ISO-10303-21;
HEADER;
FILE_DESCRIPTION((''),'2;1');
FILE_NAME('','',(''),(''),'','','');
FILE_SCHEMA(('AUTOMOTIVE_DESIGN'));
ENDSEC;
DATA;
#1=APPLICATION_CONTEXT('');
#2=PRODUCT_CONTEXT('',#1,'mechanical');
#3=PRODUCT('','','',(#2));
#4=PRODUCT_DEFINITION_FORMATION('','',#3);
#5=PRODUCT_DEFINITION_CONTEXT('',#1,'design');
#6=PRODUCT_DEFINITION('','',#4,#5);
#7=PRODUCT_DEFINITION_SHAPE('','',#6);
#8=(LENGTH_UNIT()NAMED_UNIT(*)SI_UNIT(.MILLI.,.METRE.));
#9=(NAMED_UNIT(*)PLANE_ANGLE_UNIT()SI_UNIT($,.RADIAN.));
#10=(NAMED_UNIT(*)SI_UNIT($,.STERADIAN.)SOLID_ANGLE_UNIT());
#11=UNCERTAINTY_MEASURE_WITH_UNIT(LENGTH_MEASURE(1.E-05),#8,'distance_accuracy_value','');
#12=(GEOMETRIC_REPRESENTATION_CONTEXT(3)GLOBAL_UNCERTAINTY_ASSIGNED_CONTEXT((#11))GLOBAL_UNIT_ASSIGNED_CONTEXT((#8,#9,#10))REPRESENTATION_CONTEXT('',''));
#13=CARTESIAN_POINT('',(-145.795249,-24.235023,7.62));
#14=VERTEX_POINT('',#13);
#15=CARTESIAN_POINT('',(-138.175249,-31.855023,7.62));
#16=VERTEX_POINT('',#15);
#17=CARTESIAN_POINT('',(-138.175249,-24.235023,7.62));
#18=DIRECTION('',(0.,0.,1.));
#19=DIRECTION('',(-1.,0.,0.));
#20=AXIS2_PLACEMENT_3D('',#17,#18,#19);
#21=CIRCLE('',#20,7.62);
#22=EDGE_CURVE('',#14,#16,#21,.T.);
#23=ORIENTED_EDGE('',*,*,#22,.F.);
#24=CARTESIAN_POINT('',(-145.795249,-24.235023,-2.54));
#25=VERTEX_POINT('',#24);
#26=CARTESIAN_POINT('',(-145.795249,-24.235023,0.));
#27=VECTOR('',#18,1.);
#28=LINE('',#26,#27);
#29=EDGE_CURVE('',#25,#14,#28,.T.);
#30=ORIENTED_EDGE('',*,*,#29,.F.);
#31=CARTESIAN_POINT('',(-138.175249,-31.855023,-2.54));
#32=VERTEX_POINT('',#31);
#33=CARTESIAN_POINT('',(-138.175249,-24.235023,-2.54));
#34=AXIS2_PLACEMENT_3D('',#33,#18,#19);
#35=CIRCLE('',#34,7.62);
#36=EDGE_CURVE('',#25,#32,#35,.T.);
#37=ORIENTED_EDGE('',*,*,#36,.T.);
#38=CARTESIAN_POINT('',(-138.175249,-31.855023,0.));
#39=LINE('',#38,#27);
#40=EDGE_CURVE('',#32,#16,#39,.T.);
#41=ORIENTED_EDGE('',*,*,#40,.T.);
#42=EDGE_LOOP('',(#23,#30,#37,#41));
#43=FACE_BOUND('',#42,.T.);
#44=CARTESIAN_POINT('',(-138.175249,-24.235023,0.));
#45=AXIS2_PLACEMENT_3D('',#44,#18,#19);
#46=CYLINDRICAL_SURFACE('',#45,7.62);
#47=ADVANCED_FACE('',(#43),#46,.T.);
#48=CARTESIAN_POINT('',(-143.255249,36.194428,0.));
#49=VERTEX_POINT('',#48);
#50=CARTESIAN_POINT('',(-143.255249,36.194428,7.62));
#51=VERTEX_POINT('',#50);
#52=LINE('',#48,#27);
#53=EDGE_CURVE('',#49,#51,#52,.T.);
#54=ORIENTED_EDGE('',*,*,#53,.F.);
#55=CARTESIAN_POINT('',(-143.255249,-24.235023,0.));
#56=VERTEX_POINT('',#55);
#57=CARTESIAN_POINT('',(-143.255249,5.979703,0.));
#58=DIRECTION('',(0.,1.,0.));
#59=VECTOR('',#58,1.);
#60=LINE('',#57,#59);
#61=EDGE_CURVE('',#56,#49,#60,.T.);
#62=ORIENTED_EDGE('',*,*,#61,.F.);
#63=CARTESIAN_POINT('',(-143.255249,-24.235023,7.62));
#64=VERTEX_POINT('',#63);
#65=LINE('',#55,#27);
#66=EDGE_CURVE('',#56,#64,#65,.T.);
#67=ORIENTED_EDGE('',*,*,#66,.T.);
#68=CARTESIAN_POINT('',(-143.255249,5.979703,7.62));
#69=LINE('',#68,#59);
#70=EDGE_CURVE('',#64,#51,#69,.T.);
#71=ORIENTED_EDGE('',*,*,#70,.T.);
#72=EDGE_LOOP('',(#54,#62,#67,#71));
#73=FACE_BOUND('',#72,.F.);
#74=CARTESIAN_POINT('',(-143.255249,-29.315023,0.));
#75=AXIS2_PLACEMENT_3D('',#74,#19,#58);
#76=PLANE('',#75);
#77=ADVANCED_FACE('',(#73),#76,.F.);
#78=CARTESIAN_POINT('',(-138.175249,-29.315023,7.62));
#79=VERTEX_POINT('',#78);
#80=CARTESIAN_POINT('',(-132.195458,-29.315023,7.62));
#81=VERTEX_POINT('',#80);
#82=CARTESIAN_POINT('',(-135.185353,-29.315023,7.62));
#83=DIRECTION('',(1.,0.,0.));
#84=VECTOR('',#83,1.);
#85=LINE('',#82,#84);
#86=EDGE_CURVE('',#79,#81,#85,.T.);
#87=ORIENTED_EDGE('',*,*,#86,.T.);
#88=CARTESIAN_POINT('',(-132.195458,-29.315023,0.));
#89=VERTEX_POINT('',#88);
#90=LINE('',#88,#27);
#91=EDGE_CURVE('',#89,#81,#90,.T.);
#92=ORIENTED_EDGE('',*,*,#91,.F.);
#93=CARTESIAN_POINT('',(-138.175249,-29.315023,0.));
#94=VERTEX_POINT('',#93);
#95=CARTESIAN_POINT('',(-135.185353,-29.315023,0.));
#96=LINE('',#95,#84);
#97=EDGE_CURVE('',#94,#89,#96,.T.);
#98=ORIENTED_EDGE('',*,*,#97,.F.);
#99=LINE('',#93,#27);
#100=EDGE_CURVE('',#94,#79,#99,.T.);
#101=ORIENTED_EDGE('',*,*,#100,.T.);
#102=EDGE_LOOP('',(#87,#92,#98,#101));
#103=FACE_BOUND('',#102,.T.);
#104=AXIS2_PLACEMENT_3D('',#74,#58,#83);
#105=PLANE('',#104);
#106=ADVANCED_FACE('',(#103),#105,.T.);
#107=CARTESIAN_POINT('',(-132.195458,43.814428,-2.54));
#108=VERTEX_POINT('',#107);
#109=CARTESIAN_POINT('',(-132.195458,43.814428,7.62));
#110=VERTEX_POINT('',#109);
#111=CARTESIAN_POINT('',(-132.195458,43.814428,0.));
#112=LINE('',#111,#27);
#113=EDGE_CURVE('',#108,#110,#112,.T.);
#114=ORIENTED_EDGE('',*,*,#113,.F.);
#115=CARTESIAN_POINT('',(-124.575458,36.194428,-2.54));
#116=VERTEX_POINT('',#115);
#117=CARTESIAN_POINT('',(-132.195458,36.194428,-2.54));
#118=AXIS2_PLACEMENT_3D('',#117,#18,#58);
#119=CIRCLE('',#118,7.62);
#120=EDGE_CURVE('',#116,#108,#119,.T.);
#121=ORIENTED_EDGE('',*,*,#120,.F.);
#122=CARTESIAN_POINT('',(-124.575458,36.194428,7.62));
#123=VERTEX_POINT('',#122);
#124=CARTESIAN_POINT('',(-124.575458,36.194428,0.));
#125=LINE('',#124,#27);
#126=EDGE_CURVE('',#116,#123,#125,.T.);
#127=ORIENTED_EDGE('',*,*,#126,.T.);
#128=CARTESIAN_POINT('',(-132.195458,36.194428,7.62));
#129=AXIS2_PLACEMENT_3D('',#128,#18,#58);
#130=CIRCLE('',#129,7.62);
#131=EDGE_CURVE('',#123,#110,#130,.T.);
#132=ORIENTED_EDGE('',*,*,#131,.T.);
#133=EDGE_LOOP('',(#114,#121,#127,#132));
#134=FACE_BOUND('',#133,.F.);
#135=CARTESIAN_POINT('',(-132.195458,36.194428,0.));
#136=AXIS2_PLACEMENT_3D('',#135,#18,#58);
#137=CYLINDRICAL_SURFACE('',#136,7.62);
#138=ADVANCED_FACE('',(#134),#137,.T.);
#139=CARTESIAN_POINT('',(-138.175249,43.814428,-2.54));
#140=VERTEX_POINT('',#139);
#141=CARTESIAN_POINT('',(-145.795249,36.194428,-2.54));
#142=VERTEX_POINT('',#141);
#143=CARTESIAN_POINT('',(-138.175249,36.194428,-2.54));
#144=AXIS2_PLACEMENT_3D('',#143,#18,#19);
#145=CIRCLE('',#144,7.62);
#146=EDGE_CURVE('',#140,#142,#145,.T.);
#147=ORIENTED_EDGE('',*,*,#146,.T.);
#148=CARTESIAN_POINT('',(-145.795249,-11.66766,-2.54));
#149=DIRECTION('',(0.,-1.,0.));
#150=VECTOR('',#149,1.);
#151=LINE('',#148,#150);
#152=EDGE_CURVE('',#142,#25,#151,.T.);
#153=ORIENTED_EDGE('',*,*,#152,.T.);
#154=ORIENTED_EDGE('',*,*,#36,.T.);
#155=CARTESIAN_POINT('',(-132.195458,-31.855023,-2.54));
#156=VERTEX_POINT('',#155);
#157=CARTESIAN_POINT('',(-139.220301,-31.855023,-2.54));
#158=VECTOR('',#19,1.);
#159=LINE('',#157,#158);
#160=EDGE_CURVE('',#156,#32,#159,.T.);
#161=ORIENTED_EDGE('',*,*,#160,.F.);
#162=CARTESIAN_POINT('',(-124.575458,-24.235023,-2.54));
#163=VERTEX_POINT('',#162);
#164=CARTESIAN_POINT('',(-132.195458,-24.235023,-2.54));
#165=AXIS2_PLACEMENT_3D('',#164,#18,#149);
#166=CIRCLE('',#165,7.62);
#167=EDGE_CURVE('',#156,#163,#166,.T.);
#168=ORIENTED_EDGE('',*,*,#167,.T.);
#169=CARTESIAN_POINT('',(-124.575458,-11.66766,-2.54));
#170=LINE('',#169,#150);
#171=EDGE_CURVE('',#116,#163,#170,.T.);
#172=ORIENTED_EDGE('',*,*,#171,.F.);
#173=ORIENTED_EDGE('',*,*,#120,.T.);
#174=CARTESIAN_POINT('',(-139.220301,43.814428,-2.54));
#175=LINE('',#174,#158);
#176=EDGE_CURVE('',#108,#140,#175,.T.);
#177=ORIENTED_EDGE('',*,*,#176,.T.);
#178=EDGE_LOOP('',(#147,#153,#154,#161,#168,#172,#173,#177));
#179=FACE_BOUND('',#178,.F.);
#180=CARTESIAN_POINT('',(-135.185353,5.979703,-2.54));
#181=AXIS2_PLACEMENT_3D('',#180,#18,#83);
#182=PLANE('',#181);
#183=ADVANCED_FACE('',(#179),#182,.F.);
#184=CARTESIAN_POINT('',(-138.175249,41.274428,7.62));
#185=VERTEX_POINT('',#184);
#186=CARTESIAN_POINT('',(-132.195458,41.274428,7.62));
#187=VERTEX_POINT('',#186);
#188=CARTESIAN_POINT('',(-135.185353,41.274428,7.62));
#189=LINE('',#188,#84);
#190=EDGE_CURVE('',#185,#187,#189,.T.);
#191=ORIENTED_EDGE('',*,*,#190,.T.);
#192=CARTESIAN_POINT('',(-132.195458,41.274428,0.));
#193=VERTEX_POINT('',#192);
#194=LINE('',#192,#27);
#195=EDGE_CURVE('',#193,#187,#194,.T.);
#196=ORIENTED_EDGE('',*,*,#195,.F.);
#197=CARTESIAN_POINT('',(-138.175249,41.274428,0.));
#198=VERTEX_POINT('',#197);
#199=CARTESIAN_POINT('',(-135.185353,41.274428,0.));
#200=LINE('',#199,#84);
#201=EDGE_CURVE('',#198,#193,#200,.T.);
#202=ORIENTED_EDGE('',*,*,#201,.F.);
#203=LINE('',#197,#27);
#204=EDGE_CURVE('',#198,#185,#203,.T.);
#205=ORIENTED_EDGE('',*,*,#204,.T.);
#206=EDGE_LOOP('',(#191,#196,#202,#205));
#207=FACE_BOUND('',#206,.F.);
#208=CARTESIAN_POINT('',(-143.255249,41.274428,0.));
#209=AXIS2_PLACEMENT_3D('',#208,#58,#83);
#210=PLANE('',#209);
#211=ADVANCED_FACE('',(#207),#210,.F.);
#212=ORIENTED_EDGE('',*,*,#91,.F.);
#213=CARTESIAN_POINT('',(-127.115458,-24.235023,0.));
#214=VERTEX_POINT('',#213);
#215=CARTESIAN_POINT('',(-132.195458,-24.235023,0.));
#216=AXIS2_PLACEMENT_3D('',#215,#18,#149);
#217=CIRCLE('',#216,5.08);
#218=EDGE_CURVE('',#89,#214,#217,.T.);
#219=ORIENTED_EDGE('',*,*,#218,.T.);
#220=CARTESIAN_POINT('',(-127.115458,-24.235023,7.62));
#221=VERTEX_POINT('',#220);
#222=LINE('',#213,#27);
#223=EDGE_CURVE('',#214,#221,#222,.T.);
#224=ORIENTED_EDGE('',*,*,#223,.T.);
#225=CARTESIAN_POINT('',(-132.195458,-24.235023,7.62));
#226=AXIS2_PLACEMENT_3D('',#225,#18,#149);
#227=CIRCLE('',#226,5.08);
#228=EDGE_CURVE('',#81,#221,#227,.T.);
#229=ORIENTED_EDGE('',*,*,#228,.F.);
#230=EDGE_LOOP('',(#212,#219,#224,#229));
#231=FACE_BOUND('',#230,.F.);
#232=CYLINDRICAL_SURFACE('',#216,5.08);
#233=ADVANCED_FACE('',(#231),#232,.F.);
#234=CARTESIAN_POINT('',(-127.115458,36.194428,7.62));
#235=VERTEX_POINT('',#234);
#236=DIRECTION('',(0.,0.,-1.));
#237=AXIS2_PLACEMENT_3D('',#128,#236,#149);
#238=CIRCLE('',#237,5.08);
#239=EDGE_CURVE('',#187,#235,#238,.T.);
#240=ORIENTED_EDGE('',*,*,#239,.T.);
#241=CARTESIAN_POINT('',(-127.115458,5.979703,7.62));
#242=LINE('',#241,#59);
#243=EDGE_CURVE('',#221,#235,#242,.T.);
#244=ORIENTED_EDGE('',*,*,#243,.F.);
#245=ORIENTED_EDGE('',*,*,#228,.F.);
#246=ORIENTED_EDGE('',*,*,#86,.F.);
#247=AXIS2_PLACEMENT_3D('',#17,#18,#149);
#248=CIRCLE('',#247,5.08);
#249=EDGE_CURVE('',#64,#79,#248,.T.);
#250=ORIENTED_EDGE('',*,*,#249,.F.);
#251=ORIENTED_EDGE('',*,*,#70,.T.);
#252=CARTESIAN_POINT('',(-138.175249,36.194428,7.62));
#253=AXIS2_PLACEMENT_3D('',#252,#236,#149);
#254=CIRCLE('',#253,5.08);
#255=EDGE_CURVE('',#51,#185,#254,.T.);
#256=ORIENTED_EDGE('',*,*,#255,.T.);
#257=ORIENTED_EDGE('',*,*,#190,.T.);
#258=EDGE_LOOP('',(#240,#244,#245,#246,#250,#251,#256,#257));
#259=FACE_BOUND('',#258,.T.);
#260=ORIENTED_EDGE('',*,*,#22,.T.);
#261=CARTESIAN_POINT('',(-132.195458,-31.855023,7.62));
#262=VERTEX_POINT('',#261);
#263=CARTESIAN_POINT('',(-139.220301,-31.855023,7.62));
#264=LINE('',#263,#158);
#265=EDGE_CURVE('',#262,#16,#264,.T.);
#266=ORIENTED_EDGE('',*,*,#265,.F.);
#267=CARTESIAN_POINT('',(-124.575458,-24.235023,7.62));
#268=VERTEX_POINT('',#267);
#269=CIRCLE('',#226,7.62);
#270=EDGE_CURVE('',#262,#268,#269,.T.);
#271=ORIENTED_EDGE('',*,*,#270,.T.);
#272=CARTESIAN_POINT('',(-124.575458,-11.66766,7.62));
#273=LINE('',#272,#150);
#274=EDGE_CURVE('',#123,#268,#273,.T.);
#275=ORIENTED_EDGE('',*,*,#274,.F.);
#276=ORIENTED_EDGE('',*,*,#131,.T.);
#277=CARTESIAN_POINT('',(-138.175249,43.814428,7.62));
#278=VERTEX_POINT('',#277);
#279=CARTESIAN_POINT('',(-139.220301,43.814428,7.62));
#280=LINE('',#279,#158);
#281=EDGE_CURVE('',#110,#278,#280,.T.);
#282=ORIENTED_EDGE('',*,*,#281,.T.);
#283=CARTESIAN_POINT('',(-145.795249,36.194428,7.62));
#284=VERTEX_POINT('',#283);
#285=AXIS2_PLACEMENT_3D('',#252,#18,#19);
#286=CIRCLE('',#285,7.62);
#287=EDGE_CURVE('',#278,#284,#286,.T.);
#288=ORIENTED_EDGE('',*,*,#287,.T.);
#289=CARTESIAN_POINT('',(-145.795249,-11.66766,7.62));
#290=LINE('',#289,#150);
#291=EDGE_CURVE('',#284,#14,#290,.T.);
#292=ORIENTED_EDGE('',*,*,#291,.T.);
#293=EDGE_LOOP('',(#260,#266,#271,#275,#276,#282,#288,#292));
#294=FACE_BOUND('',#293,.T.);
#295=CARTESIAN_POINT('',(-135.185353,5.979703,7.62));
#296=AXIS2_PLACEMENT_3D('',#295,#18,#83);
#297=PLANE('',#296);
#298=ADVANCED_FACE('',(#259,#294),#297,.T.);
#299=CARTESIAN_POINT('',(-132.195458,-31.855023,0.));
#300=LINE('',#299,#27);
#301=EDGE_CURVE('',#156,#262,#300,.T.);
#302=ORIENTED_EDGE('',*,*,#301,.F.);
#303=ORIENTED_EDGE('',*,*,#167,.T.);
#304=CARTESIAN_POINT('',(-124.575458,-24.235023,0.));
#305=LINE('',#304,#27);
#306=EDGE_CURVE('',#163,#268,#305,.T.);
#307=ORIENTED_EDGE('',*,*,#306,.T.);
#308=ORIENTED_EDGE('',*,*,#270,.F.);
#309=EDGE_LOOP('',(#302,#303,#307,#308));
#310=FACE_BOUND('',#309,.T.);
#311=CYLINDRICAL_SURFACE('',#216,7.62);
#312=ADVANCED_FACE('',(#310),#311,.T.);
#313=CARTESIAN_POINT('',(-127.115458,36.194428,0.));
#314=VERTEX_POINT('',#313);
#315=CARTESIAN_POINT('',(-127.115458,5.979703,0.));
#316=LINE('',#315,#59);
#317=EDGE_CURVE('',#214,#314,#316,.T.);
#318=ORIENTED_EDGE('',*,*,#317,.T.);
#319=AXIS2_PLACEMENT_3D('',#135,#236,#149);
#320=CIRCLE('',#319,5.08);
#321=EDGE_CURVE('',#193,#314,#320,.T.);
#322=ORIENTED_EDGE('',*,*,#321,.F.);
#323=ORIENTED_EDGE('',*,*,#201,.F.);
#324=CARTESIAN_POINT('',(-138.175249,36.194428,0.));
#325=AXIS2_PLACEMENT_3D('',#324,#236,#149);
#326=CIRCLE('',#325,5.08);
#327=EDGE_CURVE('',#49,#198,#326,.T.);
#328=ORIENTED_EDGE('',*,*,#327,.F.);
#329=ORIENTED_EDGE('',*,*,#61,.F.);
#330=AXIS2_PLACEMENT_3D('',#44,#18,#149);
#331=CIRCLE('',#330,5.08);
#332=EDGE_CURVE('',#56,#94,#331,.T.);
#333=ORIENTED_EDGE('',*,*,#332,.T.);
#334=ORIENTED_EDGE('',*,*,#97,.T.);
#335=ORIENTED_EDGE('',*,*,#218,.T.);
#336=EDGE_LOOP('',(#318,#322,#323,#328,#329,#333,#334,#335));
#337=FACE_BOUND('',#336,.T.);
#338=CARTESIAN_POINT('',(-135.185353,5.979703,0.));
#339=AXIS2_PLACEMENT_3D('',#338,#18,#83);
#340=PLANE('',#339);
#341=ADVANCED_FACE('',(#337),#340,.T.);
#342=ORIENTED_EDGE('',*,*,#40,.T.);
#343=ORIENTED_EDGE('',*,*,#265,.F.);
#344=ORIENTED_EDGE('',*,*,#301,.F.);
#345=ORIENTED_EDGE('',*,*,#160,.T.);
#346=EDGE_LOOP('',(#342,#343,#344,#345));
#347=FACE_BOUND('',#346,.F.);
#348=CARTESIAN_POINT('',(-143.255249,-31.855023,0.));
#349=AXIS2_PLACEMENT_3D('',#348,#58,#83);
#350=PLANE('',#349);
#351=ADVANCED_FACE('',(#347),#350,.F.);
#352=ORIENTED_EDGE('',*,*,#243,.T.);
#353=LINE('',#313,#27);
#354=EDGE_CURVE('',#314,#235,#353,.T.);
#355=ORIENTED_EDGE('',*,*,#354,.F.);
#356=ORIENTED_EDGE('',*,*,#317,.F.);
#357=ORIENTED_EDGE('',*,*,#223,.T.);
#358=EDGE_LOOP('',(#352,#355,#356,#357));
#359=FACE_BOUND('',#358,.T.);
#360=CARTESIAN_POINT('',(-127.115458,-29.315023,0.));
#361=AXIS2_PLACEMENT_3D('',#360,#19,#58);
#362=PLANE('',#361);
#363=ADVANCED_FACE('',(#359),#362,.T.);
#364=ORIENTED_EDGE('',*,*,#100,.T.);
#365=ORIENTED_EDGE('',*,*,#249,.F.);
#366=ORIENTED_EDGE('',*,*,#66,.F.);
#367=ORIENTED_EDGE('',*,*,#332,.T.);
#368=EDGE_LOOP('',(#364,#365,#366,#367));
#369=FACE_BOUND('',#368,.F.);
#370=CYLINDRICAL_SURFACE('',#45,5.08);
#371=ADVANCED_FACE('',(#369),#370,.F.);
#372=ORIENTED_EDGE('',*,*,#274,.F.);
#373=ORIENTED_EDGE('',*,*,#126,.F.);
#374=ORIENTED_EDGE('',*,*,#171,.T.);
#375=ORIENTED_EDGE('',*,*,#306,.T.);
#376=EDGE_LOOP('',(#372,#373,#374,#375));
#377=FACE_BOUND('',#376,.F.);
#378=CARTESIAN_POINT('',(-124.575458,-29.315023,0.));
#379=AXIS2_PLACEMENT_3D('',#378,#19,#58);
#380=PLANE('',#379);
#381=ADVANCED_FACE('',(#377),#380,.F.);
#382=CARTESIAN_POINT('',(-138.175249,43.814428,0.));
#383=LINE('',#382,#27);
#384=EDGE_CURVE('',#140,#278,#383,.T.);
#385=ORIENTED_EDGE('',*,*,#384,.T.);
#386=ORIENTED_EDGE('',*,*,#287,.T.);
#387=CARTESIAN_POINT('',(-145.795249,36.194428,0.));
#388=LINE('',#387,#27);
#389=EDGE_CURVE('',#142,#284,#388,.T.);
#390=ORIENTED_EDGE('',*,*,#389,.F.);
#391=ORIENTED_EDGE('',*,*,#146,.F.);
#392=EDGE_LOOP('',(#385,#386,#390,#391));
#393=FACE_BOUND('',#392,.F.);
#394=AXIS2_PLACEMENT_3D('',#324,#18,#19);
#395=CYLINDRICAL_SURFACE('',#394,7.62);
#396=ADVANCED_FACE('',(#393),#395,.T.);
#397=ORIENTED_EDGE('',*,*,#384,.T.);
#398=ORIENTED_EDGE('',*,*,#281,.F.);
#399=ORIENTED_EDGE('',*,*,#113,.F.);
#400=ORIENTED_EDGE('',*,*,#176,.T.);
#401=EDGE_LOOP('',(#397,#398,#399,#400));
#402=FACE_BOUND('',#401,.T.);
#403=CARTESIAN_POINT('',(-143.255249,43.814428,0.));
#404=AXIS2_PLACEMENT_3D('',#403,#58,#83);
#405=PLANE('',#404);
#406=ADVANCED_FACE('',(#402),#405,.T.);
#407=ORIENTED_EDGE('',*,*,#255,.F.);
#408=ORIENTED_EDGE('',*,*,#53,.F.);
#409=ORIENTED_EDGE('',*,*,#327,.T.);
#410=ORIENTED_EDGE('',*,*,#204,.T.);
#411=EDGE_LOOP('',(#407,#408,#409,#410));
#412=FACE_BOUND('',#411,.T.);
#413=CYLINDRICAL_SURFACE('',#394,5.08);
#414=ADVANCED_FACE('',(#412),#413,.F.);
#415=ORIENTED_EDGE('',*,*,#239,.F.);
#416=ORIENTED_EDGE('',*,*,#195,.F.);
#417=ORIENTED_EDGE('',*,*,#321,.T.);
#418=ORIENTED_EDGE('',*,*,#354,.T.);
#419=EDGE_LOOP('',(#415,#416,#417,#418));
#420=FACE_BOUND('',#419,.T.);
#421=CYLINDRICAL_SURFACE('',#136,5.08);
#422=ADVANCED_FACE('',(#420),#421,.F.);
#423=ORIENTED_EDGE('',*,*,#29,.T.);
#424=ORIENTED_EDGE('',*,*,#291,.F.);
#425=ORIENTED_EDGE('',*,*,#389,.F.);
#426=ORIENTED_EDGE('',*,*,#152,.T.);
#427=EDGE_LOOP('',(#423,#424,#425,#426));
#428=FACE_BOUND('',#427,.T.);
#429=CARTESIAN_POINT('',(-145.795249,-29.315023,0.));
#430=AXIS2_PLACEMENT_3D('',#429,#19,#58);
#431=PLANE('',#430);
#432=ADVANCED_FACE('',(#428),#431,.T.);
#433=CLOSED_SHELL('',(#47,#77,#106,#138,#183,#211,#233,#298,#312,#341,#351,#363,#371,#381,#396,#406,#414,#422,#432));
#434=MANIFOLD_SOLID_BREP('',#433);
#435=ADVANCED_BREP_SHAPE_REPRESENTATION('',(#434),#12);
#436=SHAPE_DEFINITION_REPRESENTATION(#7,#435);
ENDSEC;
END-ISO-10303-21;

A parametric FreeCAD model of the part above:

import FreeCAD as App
import Part
import Sketcher
from FreeCAD import Vector
Q = App.Units.Quantity


def edges_at(feature, points):
    """Names of the edges that pass closest to the given points."""
    edges = feature.Shape.Edges
    near = lambda p: min(range(len(edges)), key=lambda i: edges[i].distToShape(Part.Vertex(*p))[0])
    return sorted({f"Edge{near(p) + 1}" for p in points})


def faces_at(feature, points):
    """Names of the faces that lie closest to the given points."""
    faces = feature.Shape.Faces
    near = lambda p: min(range(len(faces)), key=lambda i: faces[i].distToShape(Part.Vertex(*p))[0])
    return sorted({f"Face{near(p) + 1}" for p in points})


def add_polygon(sketch, points):
    """Adds a closed chain of lines whose ends are joined by coincident constraints."""
    first, n = sketch.GeometryCount, len(points)
    for a, b in zip(points, points[1:] + points[:1]):
        sketch.addGeometry(Part.LineSegment(App.Vector(*a, 0), App.Vector(*b, 0)), False)
    for i in range(n):
        sketch.addConstraint(Sketcher.Constraint("Coincident", first + i, 2, first + (i + 1) % n, 1))

doc = App.newDocument("Part")
body = doc.addObject("PartDesign::Body", "Body")

sketch1 = body.newObject("Sketcher::SketchObject", "Sketch")
sketch1.AttachmentSupport = (doc.getObject("XY_Plane"), [""])
sketch1.MapMode = "FlatFace"
add_polygon(sketch1, [(-143, 41), (-143, -29), (-127, -29), (-127, 41)])
sketch1.addConstraint(Sketcher.Constraint("Vertical", 0))
sketch1.addConstraint(Sketcher.Constraint("Horizontal", 1))
sketch1.addConstraint(Sketcher.Constraint("Vertical", 2))
sketch1.addConstraint(Sketcher.Constraint("Horizontal", 3))
sketch1.addConstraint(Sketcher.Constraint("DistanceX", 1, 1, 1, 2, 16.13979))
sketch1.addConstraint(Sketcher.Constraint("DistanceY", 0, 2, 0, 1, 70.589451))
sketch1.addConstraint(Sketcher.Constraint("DistanceX", 0, 2, -1, 1, 143.255249))
sketch1.addConstraint(Sketcher.Constraint("DistanceY", -1, 1, 2, 2, 41.274428))
pad1 = body.newObject("PartDesign::Pad", "Pad")
pad1.Profile = sketch1
pad1.Length = Q("0.3 in")
doc.recompute()

fillet = body.newObject("PartDesign::Fillet", "Fillet")
fillet.Base = (pad1, edges_at(pad1, [(-143.255, -29.315, 3.81)]))
fillet.Radius = Q("0.2 in")
doc.recompute()

fillet2 = body.newObject("PartDesign::Fillet", "Fillet001")
fillet2.Base = (fillet, edges_at(fillet, [(-127.115, -29.315, 3.81)]))
fillet2.Radius = Q("0.2 in")
doc.recompute()

fillet3 = body.newObject("PartDesign::Fillet", "Fillet002")
fillet3.Base = (fillet2, edges_at(fillet2, [(-143.255, 41.274, 3.81)]))
fillet3.Radius = Q("0.2 in")
doc.recompute()

fillet4 = body.newObject("PartDesign::Fillet", "Fillet003")
fillet4.Base = (fillet3, edges_at(fillet3, [(-127.115, 41.274, 3.81)]))
fillet4.Radius = Q("0.2 in")
doc.recompute()

thickness = body.newObject("PartDesign::Thickness", "Thickness")
thickness.Base = (fillet4, faces_at(fillet4, [(-135.185, 5.98, 7.62)]))
thickness.Value = Q("0.1 in")
thickness.Reversed = False
thickness.Join = "Intersection"

doc.recompute()
